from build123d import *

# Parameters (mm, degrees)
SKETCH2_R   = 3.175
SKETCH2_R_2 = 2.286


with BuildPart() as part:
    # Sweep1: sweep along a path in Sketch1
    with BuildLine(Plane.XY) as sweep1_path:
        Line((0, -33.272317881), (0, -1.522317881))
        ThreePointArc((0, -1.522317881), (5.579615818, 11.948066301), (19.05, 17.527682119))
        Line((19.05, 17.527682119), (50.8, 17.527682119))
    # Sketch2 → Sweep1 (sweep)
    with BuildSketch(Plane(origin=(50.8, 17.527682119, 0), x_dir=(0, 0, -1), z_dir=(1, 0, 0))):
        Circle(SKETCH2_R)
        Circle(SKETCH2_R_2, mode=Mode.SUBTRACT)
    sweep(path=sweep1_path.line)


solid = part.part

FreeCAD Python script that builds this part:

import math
import FreeCAD as App
import Part
import Sketcher

V = App.Vector
Q = App.Units.Quantity

doc = App.newDocument("Part")
body = doc.addObject("PartDesign::Body", "Body")

sketch1 = body.newObject("Sketcher::SketchObject", "Sketch")
sketch1.AttachmentSupport = (doc.getObject("YZ_Plane"), [""])
sketch1.MapMode = "FlatFace"
sketch1.AttachmentOffset = App.Placement(V(0, 0, 2 * 25.4), App.Rotation())
sketch1.addGeometry([
    Part.Circle(V(17.5, 0, 0), V(0, 0, 1), 3.2),
    Part.Circle(V(17.5, 0, 0), V(0, 0, 1), 2.3),
], False)
sketch1.addConstraint([
    Sketcher.Constraint("Coincident", 1, 3, 0, 3),
    Sketcher.Constraint("PointOnObject", 0, 3, -1),
    Sketcher.Constraint("Diameter", 0, Q("0.25 in")),
    Sketcher.Constraint("Diameter", 1, Q("0.18 in")),
    Sketcher.Constraint("DistanceX", -1, 1, 0, 3, Q("17.527682 mm")),
])

sketch2 = body.newObject("Sketcher::SketchObject", "Sketch001")
sketch2.AttachmentSupport = (doc.getObject("XY_Plane"), [""])
sketch2.MapMode = "FlatFace"
sketch2.addGeometry([
    Part.LineSegment(V(0, -33, 0), V(0, -2, 0)),
    Part.ArcOfCircle(Part.Circle(V(19, -2, 0), V(0, 0, 1), 19), math.radians(90), math.radians(180)),
    Part.LineSegment(V(19, 18, 0), V(51, 18, 0)),
], False)
sketch2.addConstraint([
    Sketcher.Constraint("Tangent", 0, 2, 1, 2),
    Sketcher.Constraint("Tangent", 1, 1, 2, 1),
    Sketcher.Constraint("Vertical", 0),
    Sketcher.Constraint("Horizontal", 2),
    Sketcher.Constraint("PointOnObject", 0, 1, -2),
    Sketcher.Constraint("Equal", 2, 0),
    Sketcher.Constraint("Radius", 1, Q("0.75 in")),
    Sketcher.Constraint("DistanceX", -1, 1, 2, 2, Q("2 in")),
    Sketcher.Constraint("DistanceY", 1, 3, -1, 1, Q("1.522318 mm")),
])
doc.recompute()

additivepipe = body.newObject("PartDesign::AdditivePipe", "AdditivePipe")
additivepipe.Profile = sketch1
additivepipe.Spine = (sketch2, ["Edge1", "Edge2", "Edge3"])

doc.recompute()
